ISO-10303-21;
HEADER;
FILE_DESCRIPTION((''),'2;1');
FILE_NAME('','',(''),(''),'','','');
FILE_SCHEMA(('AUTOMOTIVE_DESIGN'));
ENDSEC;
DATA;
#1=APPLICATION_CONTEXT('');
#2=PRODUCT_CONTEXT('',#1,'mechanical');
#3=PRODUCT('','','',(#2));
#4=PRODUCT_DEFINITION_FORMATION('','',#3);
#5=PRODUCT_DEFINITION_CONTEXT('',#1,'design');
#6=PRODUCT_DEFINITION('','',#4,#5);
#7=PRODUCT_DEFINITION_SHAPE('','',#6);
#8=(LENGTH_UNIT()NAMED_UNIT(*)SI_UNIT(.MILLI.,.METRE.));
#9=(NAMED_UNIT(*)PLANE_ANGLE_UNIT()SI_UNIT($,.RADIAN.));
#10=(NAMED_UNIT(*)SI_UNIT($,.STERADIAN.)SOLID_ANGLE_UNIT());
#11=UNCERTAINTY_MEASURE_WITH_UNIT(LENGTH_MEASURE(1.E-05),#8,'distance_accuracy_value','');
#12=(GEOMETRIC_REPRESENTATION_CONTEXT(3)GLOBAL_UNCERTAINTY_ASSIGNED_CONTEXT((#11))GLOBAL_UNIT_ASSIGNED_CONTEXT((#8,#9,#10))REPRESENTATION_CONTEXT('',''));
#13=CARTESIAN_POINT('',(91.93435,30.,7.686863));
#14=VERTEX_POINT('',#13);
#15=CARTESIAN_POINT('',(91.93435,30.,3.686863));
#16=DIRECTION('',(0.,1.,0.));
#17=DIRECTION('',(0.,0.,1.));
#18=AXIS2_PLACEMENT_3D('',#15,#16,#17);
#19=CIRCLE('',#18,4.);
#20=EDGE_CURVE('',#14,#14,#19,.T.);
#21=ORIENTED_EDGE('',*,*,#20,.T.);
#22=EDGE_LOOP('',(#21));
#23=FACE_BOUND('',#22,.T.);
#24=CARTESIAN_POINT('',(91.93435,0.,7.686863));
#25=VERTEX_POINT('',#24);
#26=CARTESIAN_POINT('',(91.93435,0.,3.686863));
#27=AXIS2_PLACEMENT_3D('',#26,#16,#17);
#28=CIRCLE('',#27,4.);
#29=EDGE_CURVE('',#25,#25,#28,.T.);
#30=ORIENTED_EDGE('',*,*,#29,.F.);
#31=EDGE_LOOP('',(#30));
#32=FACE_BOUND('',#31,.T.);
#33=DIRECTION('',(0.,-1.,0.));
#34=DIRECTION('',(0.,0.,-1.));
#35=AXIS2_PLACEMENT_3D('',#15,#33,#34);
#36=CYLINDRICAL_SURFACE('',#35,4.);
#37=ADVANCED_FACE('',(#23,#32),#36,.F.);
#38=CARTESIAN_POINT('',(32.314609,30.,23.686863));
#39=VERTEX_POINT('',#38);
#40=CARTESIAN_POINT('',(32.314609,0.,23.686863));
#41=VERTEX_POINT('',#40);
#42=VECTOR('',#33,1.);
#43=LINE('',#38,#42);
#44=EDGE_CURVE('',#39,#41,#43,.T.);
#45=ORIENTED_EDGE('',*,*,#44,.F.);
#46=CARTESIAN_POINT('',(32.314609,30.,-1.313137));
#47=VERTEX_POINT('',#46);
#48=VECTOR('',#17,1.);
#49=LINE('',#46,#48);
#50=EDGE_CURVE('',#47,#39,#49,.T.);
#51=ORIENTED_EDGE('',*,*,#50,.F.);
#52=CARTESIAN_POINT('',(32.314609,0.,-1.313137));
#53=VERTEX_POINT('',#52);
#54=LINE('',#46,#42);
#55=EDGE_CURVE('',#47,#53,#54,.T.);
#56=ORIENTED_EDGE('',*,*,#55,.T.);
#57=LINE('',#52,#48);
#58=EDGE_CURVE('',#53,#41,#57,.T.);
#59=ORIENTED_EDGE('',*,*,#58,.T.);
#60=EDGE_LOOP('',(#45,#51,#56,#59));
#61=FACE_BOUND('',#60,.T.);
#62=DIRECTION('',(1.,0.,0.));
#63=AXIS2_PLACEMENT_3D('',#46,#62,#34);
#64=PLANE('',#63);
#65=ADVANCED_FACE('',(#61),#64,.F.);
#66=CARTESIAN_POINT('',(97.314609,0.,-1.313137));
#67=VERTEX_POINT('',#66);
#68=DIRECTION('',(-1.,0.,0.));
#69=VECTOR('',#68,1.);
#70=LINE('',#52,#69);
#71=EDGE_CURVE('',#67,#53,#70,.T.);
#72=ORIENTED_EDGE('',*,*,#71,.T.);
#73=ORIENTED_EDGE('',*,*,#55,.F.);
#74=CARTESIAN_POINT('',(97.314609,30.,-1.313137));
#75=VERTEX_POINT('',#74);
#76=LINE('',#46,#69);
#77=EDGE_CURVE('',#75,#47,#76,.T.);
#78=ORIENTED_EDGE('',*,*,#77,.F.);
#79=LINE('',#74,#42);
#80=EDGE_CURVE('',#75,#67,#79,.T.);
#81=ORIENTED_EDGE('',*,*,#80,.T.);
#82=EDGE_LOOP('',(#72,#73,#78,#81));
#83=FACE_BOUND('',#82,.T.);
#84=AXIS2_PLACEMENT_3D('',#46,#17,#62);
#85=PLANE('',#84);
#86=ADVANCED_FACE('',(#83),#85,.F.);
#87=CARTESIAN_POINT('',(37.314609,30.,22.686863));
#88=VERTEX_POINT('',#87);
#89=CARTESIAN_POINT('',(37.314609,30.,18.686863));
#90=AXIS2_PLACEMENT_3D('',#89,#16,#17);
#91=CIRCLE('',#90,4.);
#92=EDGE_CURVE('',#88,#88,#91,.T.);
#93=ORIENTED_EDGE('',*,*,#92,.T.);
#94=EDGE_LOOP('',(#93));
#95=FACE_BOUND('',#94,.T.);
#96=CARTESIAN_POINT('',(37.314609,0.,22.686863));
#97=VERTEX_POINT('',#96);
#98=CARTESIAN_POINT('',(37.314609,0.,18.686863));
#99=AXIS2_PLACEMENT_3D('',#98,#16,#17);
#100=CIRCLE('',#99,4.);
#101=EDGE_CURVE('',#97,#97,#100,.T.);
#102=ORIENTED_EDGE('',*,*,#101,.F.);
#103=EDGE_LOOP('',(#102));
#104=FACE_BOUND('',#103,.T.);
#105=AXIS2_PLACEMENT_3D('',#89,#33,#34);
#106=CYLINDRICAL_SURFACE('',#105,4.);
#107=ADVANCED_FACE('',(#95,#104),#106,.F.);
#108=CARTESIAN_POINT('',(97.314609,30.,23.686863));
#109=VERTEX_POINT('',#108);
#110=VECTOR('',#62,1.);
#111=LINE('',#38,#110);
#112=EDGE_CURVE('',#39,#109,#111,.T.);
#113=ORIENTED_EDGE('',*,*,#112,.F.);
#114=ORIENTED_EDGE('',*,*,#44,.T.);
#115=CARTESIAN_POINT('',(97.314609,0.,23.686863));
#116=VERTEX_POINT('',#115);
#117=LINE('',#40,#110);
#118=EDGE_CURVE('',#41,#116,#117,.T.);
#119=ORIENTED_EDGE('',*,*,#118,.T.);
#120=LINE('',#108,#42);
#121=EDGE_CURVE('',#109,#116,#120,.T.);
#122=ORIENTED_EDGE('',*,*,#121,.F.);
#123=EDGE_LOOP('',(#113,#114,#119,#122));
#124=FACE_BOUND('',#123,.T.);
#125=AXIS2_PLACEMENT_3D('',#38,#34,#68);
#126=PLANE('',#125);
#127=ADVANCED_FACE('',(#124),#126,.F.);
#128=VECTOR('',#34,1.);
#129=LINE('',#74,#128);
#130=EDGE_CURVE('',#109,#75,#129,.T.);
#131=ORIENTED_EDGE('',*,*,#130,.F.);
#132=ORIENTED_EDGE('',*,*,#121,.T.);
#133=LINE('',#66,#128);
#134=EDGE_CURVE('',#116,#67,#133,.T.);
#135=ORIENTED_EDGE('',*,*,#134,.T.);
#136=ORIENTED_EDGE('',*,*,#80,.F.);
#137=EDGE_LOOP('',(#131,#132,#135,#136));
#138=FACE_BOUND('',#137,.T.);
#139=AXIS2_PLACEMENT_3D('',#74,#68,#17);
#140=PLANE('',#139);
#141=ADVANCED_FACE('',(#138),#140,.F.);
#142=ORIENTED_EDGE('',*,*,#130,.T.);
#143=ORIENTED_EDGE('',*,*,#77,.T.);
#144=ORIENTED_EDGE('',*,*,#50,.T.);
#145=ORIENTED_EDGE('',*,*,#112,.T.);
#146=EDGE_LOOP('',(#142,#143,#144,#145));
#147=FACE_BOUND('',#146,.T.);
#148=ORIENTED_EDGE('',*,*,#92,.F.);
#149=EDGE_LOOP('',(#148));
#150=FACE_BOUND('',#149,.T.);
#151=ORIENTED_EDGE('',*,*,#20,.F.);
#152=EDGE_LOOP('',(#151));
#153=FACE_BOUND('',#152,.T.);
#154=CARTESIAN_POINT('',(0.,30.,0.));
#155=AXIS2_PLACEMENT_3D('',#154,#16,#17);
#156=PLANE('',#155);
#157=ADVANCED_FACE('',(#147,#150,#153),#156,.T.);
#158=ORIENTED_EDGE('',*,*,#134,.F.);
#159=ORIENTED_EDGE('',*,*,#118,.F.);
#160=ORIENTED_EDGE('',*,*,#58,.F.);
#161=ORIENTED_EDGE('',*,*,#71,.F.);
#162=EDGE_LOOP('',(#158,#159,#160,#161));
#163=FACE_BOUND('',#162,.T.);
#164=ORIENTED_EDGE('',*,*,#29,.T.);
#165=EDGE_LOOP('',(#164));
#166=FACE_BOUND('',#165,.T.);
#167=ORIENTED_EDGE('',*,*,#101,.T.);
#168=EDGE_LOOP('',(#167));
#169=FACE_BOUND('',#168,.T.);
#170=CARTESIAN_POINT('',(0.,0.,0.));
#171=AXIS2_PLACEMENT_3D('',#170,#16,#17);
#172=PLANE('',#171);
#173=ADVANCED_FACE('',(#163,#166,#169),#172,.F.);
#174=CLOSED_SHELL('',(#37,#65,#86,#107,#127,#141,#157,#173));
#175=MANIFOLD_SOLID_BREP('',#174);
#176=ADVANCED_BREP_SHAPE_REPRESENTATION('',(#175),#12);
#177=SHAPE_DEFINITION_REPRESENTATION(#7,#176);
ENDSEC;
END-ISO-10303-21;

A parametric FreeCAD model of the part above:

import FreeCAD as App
import Part
import Sketcher
from FreeCAD import Vector

doc = App.newDocument("Part")
body = doc.addObject("PartDesign::Body", "Body")

sketch1 = body.newObject("Sketcher::SketchObject", "Sketch")
sketch1.AttachmentSupport = (doc.getObject("XZ_Plane"), [""])
sketch1.MapMode = "FlatFace"
sketch1.addGeometry([
    Part.LineSegment(Vector(32.3, -1.3, 0), Vector(32.3, 23.7, 0)),
    Part.LineSegment(Vector(32.3, 23.7, 0), Vector(97.3, 23.7, 0)),
    Part.LineSegment(Vector(97.3, 23.7, 0), Vector(97.3, -1.3, 0)),
    Part.LineSegment(Vector(97.3, -1.3, 0), Vector(32.3, -1.3, 0)),
    Part.Circle(Vector(37.3, 18.7, 0), Vector(0, 0, 1), 4),
    Part.Circle(Vector(91.9, 3.7, 0), Vector(0, 0, 1), 4),
], False)
sketch1.addConstraint([
    Sketcher.Constraint("Coincident", 0, 2, 1, 1),
    Sketcher.Constraint("Coincident", 1, 2, 2, 1),
    Sketcher.Constraint("Coincident", 2, 2, 3, 1),
    Sketcher.Constraint("Coincident", 3, 2, 0, 1),
    Sketcher.Constraint("Vertical", 0),
    Sketcher.Constraint("Horizontal", 1),
    Sketcher.Constraint("Vertical", 2),
    Sketcher.Constraint("Horizontal", 3),
    Sketcher.Constraint("Equal", 4, 5),
    Sketcher.Constraint("Diameter", 4, 8.0),
    Sketcher.Constraint("DistanceX", 1, 1, 1, 2, 65.0),
    Sketcher.Constraint("DistanceY", 0, 1, 0, 2, 25.0),
    Sketcher.Constraint("DistanceY", 5, 3, 4, 3, 15.0),
    Sketcher.Constraint("DistanceX", 0, 2, 4, 3, 5.0),
    Sketcher.Constraint("DistanceY", 4, 3, 0, 2, 5.0),
    Sketcher.Constraint("DistanceX", -1, 1, 4, 3, 37.314609),
    Sketcher.Constraint("DistanceX", -1, 1, 5, 3, 91.93435),
    Sketcher.Constraint("DistanceY", -1, 1, 4, 3, 18.686863),
])
pad1 = body.newObject("PartDesign::Pad", "Pad")
pad1.Profile = sketch1
pad1.Length = 30
pad1.Reversed = True

doc.recompute()
